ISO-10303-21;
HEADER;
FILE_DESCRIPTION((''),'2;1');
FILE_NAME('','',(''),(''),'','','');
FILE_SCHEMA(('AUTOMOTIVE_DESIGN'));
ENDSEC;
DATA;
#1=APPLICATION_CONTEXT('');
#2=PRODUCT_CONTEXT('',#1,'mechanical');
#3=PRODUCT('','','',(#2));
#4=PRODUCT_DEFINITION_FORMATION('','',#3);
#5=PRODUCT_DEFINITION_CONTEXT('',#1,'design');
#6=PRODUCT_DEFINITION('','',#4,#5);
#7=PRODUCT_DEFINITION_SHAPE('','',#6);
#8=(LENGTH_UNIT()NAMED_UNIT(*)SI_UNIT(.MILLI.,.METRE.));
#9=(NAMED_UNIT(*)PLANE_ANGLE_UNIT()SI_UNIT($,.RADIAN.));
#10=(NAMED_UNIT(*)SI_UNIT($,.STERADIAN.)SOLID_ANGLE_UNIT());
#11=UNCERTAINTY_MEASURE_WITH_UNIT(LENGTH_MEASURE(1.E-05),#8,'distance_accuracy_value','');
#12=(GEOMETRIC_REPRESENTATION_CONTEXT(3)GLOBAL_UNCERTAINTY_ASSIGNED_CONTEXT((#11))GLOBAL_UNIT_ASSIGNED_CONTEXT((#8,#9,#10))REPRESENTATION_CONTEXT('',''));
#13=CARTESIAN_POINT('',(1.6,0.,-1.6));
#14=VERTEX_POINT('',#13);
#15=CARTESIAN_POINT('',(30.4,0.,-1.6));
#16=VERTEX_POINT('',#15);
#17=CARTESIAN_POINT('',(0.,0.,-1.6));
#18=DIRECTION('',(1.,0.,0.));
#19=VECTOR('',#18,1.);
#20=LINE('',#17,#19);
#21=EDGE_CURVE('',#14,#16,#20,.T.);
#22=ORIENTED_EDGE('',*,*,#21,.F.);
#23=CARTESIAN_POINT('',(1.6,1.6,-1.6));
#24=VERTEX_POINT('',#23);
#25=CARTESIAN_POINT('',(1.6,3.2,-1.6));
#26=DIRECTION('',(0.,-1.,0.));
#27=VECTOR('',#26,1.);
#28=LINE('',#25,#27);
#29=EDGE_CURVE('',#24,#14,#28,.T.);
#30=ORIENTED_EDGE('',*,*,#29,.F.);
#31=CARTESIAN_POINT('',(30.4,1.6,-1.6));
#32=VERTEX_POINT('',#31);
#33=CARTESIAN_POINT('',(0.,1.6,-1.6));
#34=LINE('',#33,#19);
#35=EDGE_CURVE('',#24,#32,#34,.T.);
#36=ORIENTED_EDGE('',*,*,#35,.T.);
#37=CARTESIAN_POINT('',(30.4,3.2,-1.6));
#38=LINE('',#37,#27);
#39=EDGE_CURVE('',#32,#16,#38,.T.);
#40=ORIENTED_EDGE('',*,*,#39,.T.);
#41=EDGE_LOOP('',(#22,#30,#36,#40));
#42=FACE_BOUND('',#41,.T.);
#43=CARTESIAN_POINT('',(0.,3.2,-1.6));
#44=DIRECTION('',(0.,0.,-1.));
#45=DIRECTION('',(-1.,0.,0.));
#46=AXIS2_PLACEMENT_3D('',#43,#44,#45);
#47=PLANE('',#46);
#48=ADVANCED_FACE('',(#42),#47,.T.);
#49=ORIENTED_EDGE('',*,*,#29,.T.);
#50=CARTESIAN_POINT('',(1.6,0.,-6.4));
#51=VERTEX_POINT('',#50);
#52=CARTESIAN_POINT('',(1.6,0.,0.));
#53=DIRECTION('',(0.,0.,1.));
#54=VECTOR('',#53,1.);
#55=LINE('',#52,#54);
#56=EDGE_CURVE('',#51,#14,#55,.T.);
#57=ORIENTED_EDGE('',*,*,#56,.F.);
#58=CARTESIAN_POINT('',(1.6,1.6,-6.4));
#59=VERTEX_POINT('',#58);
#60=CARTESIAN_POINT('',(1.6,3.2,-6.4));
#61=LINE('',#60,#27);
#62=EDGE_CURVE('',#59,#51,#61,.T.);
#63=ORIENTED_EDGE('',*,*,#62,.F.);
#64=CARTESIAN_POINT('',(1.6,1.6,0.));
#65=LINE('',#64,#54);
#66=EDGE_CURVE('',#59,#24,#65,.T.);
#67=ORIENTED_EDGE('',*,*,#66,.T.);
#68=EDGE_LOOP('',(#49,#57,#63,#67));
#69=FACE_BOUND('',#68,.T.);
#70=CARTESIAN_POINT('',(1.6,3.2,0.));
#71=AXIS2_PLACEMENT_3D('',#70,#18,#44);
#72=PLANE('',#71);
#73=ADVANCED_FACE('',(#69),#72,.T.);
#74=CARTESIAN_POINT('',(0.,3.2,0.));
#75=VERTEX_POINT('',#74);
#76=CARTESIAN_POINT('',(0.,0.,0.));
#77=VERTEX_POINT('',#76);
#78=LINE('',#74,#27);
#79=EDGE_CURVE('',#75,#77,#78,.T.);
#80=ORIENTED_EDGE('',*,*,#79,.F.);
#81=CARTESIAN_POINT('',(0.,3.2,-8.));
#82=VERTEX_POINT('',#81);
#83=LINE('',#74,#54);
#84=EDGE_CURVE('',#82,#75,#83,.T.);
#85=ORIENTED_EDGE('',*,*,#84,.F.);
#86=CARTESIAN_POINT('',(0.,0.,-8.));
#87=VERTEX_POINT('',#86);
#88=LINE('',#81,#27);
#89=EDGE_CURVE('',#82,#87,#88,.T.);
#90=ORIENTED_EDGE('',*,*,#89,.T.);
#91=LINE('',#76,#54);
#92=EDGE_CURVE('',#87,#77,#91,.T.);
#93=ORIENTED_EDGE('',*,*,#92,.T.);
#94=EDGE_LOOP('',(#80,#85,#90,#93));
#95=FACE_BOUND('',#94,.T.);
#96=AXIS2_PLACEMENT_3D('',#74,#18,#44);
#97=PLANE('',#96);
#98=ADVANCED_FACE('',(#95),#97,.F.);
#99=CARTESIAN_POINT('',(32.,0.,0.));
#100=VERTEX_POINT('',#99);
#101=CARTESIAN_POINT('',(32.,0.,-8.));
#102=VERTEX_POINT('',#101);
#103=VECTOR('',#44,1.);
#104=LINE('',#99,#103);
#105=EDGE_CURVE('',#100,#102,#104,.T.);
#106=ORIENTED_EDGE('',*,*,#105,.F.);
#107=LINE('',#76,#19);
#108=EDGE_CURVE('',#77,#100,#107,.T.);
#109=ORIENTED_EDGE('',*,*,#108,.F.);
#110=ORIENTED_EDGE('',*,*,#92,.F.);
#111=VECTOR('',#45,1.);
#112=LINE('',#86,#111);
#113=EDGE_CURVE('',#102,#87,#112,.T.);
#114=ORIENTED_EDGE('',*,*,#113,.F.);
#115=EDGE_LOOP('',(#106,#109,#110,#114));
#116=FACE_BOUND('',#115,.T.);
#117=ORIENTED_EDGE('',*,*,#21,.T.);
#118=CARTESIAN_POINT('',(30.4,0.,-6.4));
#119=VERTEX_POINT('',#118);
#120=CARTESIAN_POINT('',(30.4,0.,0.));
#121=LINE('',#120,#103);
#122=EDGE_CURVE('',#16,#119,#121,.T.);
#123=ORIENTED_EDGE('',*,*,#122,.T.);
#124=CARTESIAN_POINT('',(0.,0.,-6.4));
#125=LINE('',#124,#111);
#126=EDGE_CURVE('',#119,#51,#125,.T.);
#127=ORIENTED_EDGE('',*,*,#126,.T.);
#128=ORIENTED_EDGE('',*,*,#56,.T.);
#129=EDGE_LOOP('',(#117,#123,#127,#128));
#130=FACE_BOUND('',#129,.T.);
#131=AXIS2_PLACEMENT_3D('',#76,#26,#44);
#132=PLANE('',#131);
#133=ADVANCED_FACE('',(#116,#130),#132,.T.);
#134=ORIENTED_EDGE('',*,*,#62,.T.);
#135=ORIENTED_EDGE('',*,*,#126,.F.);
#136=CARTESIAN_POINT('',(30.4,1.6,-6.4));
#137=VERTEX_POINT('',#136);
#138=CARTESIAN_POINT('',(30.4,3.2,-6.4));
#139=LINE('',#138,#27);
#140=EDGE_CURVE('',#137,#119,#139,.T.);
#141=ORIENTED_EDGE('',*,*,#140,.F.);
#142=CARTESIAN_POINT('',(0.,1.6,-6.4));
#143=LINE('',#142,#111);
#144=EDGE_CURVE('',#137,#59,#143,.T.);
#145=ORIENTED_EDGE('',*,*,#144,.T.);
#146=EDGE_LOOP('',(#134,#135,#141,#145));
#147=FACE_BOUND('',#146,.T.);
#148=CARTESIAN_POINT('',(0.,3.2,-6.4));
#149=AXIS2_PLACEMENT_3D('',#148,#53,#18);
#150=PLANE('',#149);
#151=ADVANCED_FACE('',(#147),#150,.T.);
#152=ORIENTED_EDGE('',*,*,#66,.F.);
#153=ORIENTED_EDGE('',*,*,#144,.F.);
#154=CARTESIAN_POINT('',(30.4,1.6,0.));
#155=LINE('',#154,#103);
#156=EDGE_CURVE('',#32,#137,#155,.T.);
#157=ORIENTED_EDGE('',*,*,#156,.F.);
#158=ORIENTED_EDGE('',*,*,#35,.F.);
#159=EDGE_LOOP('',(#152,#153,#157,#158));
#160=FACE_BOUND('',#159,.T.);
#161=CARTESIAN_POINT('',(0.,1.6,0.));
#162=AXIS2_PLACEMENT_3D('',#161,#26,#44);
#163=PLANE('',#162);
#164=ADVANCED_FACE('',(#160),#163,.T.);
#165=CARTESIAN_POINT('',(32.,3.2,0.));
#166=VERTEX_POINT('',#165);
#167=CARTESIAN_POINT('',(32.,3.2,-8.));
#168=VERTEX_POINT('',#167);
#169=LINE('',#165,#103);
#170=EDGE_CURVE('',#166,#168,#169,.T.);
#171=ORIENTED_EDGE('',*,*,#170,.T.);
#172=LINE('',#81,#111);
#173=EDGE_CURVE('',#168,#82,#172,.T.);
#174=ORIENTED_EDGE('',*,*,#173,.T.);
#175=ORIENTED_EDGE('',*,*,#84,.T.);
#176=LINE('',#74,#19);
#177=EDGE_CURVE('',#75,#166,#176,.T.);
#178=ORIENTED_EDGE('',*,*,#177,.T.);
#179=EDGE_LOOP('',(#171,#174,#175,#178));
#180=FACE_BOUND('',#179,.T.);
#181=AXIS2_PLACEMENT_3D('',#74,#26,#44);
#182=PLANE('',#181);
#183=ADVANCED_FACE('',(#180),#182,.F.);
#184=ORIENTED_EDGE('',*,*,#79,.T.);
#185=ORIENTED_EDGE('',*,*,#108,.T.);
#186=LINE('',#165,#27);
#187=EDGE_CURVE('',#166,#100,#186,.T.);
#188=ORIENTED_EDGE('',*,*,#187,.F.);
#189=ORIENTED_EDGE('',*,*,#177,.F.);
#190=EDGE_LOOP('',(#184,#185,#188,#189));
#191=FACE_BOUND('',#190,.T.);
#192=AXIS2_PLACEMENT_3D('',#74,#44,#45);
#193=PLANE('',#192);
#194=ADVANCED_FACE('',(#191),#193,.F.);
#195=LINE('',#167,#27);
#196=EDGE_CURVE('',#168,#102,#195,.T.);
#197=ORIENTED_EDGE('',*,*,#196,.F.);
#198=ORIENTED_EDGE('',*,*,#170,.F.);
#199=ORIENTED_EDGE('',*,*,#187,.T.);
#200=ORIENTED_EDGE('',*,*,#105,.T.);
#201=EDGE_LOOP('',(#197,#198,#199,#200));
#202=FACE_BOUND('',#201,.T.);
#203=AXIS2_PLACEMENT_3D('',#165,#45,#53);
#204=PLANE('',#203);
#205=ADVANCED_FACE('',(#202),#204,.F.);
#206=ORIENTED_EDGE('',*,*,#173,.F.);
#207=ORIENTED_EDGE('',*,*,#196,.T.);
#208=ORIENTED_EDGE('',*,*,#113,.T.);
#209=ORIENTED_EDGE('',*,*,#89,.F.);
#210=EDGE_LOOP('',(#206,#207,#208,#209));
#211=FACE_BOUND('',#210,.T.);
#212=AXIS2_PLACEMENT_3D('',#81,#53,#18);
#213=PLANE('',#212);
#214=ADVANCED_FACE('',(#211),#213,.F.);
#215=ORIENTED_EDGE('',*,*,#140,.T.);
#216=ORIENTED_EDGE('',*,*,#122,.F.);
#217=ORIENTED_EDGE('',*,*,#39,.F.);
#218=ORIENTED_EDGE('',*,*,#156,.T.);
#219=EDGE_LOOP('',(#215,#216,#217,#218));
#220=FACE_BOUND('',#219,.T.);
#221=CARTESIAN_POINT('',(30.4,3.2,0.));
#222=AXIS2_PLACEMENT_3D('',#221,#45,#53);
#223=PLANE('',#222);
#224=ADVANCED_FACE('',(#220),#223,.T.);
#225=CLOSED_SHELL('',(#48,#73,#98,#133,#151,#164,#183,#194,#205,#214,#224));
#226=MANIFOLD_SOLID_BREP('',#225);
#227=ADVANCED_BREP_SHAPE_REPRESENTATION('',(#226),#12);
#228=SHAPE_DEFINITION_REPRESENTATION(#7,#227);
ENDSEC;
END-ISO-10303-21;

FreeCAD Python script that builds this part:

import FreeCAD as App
import Part
import Sketcher
from FreeCAD import Vector


def faces_at(feature, points):
    """Names of the faces that lie closest to the given points."""
    faces = feature.Shape.Faces
    near = lambda p: min(range(len(faces)), key=lambda i: faces[i].distToShape(Part.Vertex(*p))[0])
    return sorted({f"Face{near(p) + 1}" for p in points})

doc = App.newDocument("Part")
body = doc.addObject("PartDesign::Body", "Body")

# Sketch on XZ plane
sketch1 = doc.addObject("Sketcher::SketchObject", "Sketch")
body.addObject(sketch1)
sketch1.AttachmentSupport = (doc.XZ_Plane, [""])
sketch1.MapMode = "FlatFace"
sketch1.addGeometry([
    Part.LineSegment(Vector(0, -8, 0), Vector(0, 0, 0)),
    Part.LineSegment(Vector(0, 0, 0), Vector(32, 0, 0)),
    Part.LineSegment(Vector(32, 0, 0), Vector(32, -8, 0)),
    Part.LineSegment(Vector(32, -8, 0), Vector(0, -8, 0)),
], False)
sketch1.addConstraint([
    Sketcher.Constraint("Coincident", 0, 2, 1, 1),
    Sketcher.Constraint("Coincident", 1, 2, 2, 1),
    Sketcher.Constraint("Coincident", 2, 2, 3, 1),
    Sketcher.Constraint("Coincident", 3, 2, 0, 1),
    Sketcher.Constraint("Vertical", 0),
    Sketcher.Constraint("Horizontal", 1),
    Sketcher.Constraint("Vertical", 2),
    Sketcher.Constraint("Horizontal", 3),
    Sketcher.Constraint("Coincident", 0, 2, -1, 1),
    Sketcher.Constraint("DistanceX", 1, 1, 1, 2, 32.0),
    Sketcher.Constraint("DistanceY", 0, 1, 0, 2, 8.0),
])
pad1 = doc.addObject("PartDesign::Pad", "Pad")
body.addObject(pad1)
pad1.Profile = sketch1
pad1.Length = 3.2
pad1.Reversed = True
doc.recompute()

thickness = doc.addObject("PartDesign::Thickness", "Thickness")
body.addObject(thickness)
thickness.Base = (pad1, faces_at(pad1, [(16, 0, -4)]))
thickness.Value = 1.6
thickness.Reversed = True
thickness.Join = "Intersection"

doc.recompute()
